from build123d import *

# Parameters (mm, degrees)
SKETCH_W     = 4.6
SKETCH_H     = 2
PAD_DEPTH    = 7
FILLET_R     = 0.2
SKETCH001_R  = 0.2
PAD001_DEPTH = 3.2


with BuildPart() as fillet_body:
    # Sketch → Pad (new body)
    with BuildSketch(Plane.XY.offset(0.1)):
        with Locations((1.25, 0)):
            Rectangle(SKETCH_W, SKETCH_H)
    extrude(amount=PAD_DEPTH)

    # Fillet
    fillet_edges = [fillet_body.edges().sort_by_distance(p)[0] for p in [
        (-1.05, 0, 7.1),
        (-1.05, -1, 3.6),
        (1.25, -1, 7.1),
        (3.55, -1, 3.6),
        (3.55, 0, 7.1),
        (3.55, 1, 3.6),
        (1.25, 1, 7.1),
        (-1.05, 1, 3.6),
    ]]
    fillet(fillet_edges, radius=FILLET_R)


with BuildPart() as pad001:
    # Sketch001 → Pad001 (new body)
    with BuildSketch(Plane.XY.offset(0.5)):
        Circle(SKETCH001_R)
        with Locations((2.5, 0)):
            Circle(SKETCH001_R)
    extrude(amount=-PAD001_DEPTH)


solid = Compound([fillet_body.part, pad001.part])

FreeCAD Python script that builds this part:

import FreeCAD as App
import Part
import Sketcher

V = App.Vector
Q = App.Units.Quantity


def edges_at(feature, points):
    """Names of the edges that pass closest to the given points."""
    edges = feature.Shape.Edges
    near = lambda p: min(range(len(edges)), key=lambda i: edges[i].distToShape(Part.Vertex(*p))[0])
    return sorted({f"Edge{near(p) + 1}" for p in points})

doc = App.newDocument("Part")
params = doc.addObject("Spreadsheet::Sheet", "Params")
for row, (alias, value) in enumerate([
    ("sketch1_height", "2 mm"),
    ("sketch1_width", "4.6 mm"),
    ("pad1_length", "7 mm"),
    ("fillet_radius", "0.2 mm"),
    ("sketch2_diameter", "0.4 mm"),
    ("pad2_length", "3.2 mm"),
], start=1):
    params.set(f"A{row}", alias)
    params.set(f"B{row}", "=" + value)
    params.setAlias(f"B{row}", alias)

body = doc.addObject("PartDesign::Body", "Body")

sketch1 = doc.addObject("Sketcher::SketchObject", "Sketch")
body.addObject(sketch1)
sketch1.AttachmentSupport = (doc.XY_Plane, [""])
sketch1.MapMode = "FlatFace"
sketch1.AttachmentOffset = App.Placement(V(0, 0, 0.1), App.Rotation())
sketch1.addGeometry([
    Part.LineSegment(V(-1.1, 1, 0), V(-1.1, -1, 0)),
    Part.LineSegment(V(-1.1, -1, 0), V(3.5, -1, 0)),
    Part.LineSegment(V(3.5, -1, 0), V(3.5, 1, 0)),
    Part.LineSegment(V(3.5, 1, 0), V(-1.1, 1, 0)),
], False)
sketch1.addConstraint([
    Sketcher.Constraint("Coincident", 0, 2, 1, 1),
    Sketcher.Constraint("Coincident", 1, 2, 2, 1),
    Sketcher.Constraint("Coincident", 2, 2, 3, 1),
    Sketcher.Constraint("Coincident", 3, 2, 0, 1),
    Sketcher.Constraint("Vertical", 0),
    Sketcher.Constraint("Horizontal", 1),
    Sketcher.Constraint("Vertical", 2),
    Sketcher.Constraint("Horizontal", 3),
    Sketcher.Constraint("DistanceY", 0, 2, 0, 1, Q("2 mm")),
    Sketcher.Constraint("DistanceX", 1, 1, 1, 2, Q("4.6 mm")),
    Sketcher.Constraint("DistanceY", 0, 2, -1, 1, Q("1 mm")),
    Sketcher.Constraint("DistanceX", 0, 2, -1, 1, Q("1.05 mm")),
])
sketch1.setExpression("Constraints[8]", "Params.sketch1_height")
sketch1.setExpression("Constraints[9]", "Params.sketch1_width")
pad1 = doc.addObject("PartDesign::Pad", "Pad")
body.addObject(pad1)
pad1.Profile = sketch1
pad1.setExpression("Length", "Params.pad1_length")
doc.recompute()

fillet = doc.addObject("PartDesign::Fillet", "Fillet")
body.addObject(fillet)
fillet.Base = (pad1, edges_at(pad1, [
    (-1.05, 0, 7.1),
    (-1.05, -1, 3.6),
    (1.25, -1, 7.1),
    (3.55, -1, 3.6),
    (3.55, 0, 7.1),
    (3.55, 1, 3.6),
    (1.25, 1, 7.1),
    (-1.05, 1, 3.6),
]))
fillet.setExpression("Radius", "Params.fillet_radius")
body2 = doc.addObject("PartDesign::Body", "Body001")
body2.AllowCompound = True

sketch2 = doc.addObject("Sketcher::SketchObject", "Sketch001")
body2.addObject(sketch2)
sketch2.AttachmentSupport = (doc.getObject("XY_Plane001"), [""])
sketch2.MapMode = "FlatFace"
sketch2.AttachmentOffset = App.Placement(V(0, 0, 0.5), App.Rotation())
sketch2.addGeometry([
    Part.Circle(V(0, 0, 0), V(0, 0, 1), 0.2),
    Part.Circle(V(2.5, 0, 0), V(0, 0, 1), 0.2),
], False)
sketch2.addConstraint([
    Sketcher.Constraint("Coincident", 0, 3, -1, 1),
    Sketcher.Constraint("Equal", 0, 1),
    Sketcher.Constraint("PointOnObject", 1, 3, -1),
    Sketcher.Constraint("Diameter", 0, Q("0.4 mm")),
    Sketcher.Constraint("DistanceX", -1, 1, 1, 3, Q("2.5 mm")),
])
sketch2.setExpression("Constraints[3]", "Params.sketch2_diameter")
pad2 = doc.addObject("PartDesign::Pad", "Pad001")
body2.addObject(pad2)
pad2.Profile = sketch2
pad2.setExpression("Length", "Params.pad2_length")
pad2.Reversed = True

doc.recompute()
